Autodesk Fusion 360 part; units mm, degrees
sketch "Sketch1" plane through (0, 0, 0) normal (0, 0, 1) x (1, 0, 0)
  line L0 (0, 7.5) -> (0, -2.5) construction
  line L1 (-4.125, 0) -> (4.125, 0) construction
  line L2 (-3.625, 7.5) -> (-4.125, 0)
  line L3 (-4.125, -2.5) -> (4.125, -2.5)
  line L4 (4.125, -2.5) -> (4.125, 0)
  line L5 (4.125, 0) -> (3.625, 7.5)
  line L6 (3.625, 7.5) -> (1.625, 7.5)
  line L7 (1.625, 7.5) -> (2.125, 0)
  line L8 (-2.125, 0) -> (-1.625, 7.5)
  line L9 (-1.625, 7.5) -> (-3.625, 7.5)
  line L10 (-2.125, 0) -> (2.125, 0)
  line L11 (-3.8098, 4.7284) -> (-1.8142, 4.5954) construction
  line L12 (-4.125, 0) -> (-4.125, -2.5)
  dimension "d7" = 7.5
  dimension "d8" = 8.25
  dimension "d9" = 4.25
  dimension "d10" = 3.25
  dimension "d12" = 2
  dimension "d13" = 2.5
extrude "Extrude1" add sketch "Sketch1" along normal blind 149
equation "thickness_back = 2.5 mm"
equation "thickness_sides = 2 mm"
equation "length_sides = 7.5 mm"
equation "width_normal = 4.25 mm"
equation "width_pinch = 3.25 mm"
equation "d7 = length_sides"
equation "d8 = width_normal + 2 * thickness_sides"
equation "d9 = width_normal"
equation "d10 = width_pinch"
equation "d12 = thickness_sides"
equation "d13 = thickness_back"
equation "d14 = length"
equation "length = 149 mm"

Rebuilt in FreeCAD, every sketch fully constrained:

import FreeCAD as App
import Part
import Sketcher
Q = App.Units.Quantity

doc = App.newDocument("Part")
body = doc.addObject("PartDesign::Body", "Body")

# Sketch on XY plane
sketch1 = body.newObject("Sketcher::SketchObject", "Sketch")
sketch1.AttachmentSupport = (doc.getObject("XY_Plane"), [""])
sketch1.MapMode = "FlatFace"
sketch1.addGeometry(Part.LineSegment(App.Vector(-1.6, 7.5, 0), App.Vector(-3.6, 7.5, 0)), False)
sketch1.addGeometry(Part.LineSegment(App.Vector(-3.6, 7.5, 0), App.Vector(-4.1, 0, 0)), False)
sketch1.addGeometry(Part.LineSegment(App.Vector(-4.1, 0, 0), App.Vector(-4.1, -2.5, 0)), False)
sketch1.addGeometry(Part.LineSegment(App.Vector(-4.1, -2.5, 0), App.Vector(4.1, -2.5, 0)), False)
sketch1.addGeometry(Part.LineSegment(App.Vector(4.1, -2.5, 0), App.Vector(4.1, 0, 0)), False)
sketch1.addGeometry(Part.LineSegment(App.Vector(4.1, 0, 0), App.Vector(3.6, 7.5, 0)), False)
sketch1.addGeometry(Part.LineSegment(App.Vector(3.6, 7.5, 0), App.Vector(1.6, 7.5, 0)), False)
sketch1.addGeometry(Part.LineSegment(App.Vector(1.6, 7.5, 0), App.Vector(2.1, 0, 0)), False)
sketch1.addGeometry(Part.LineSegment(App.Vector(2.1, 0, 0), App.Vector(-2.1, 0, 0)), False)
sketch1.addGeometry(Part.LineSegment(App.Vector(-2.1, 0, 0), App.Vector(-1.6, 7.5, 0)), False)
sketch1.addConstraint(Sketcher.Constraint("Coincident", 0, 2, 1, 1))
sketch1.addConstraint(Sketcher.Constraint("Coincident", 1, 2, 2, 1))
sketch1.addConstraint(Sketcher.Constraint("Coincident", 2, 2, 3, 1))
sketch1.addConstraint(Sketcher.Constraint("Coincident", 3, 2, 4, 1))
sketch1.addConstraint(Sketcher.Constraint("Coincident", 4, 2, 5, 1))
sketch1.addConstraint(Sketcher.Constraint("Coincident", 5, 2, 6, 1))
sketch1.addConstraint(Sketcher.Constraint("Coincident", 6, 2, 7, 1))
sketch1.addConstraint(Sketcher.Constraint("Coincident", 7, 2, 8, 1))
sketch1.addConstraint(Sketcher.Constraint("Coincident", 8, 2, 9, 1))
sketch1.addConstraint(Sketcher.Constraint("Coincident", 9, 2, 0, 1))
sketch1.addConstraint(Sketcher.Constraint("Horizontal", 0))
sketch1.addConstraint(Sketcher.Constraint("Vertical", 2))
sketch1.addConstraint(Sketcher.Constraint("Horizontal", 3))
sketch1.addConstraint(Sketcher.Constraint("Vertical", 4))
sketch1.addConstraint(Sketcher.Constraint("Horizontal", 6))
sketch1.addConstraint(Sketcher.Constraint("Horizontal", 8))
sketch1.addConstraint(Sketcher.Constraint("Symmetric", 1, 2, 4, 2, -1, 1))
sketch1.addConstraint(Sketcher.Constraint("Symmetric", 7, 2, 8, 2, -1, 1))
sketch1.addConstraint(Sketcher.Constraint("Symmetric", 0, 2, 5, 2, -2))
sketch1.addConstraint(Sketcher.Constraint("PointOnObject", 1, 2, -1))
sketch1.addConstraint(Sketcher.Constraint("Parallel", 5, 7))
sketch1.addConstraint(Sketcher.Constraint("Parallel", 1, 9))
sketch1.addConstraint(Sketcher.Constraint("DistanceX", 0, 2, 0, 1, Q("2 mm")))
sketch1.addConstraint(Sketcher.Constraint("DistanceY", 2, 2, 2, 1, Q("2.5 mm")))
sketch1.addConstraint(Sketcher.Constraint("DistanceX", 3, 1, 3, 2, Q("8.25 mm")))
sketch1.addConstraint(Sketcher.Constraint("DistanceY", -1, 1, 0, 2, Q("7.5 mm")))
sketch1.addConstraint(Sketcher.Constraint("DistanceX", 6, 2, 4, 2, Q("2.5 mm")))
pad1 = body.newObject("PartDesign::Pad", "Pad")
pad1.Profile = sketch1
pad1.Length = 149

doc.recompute()
